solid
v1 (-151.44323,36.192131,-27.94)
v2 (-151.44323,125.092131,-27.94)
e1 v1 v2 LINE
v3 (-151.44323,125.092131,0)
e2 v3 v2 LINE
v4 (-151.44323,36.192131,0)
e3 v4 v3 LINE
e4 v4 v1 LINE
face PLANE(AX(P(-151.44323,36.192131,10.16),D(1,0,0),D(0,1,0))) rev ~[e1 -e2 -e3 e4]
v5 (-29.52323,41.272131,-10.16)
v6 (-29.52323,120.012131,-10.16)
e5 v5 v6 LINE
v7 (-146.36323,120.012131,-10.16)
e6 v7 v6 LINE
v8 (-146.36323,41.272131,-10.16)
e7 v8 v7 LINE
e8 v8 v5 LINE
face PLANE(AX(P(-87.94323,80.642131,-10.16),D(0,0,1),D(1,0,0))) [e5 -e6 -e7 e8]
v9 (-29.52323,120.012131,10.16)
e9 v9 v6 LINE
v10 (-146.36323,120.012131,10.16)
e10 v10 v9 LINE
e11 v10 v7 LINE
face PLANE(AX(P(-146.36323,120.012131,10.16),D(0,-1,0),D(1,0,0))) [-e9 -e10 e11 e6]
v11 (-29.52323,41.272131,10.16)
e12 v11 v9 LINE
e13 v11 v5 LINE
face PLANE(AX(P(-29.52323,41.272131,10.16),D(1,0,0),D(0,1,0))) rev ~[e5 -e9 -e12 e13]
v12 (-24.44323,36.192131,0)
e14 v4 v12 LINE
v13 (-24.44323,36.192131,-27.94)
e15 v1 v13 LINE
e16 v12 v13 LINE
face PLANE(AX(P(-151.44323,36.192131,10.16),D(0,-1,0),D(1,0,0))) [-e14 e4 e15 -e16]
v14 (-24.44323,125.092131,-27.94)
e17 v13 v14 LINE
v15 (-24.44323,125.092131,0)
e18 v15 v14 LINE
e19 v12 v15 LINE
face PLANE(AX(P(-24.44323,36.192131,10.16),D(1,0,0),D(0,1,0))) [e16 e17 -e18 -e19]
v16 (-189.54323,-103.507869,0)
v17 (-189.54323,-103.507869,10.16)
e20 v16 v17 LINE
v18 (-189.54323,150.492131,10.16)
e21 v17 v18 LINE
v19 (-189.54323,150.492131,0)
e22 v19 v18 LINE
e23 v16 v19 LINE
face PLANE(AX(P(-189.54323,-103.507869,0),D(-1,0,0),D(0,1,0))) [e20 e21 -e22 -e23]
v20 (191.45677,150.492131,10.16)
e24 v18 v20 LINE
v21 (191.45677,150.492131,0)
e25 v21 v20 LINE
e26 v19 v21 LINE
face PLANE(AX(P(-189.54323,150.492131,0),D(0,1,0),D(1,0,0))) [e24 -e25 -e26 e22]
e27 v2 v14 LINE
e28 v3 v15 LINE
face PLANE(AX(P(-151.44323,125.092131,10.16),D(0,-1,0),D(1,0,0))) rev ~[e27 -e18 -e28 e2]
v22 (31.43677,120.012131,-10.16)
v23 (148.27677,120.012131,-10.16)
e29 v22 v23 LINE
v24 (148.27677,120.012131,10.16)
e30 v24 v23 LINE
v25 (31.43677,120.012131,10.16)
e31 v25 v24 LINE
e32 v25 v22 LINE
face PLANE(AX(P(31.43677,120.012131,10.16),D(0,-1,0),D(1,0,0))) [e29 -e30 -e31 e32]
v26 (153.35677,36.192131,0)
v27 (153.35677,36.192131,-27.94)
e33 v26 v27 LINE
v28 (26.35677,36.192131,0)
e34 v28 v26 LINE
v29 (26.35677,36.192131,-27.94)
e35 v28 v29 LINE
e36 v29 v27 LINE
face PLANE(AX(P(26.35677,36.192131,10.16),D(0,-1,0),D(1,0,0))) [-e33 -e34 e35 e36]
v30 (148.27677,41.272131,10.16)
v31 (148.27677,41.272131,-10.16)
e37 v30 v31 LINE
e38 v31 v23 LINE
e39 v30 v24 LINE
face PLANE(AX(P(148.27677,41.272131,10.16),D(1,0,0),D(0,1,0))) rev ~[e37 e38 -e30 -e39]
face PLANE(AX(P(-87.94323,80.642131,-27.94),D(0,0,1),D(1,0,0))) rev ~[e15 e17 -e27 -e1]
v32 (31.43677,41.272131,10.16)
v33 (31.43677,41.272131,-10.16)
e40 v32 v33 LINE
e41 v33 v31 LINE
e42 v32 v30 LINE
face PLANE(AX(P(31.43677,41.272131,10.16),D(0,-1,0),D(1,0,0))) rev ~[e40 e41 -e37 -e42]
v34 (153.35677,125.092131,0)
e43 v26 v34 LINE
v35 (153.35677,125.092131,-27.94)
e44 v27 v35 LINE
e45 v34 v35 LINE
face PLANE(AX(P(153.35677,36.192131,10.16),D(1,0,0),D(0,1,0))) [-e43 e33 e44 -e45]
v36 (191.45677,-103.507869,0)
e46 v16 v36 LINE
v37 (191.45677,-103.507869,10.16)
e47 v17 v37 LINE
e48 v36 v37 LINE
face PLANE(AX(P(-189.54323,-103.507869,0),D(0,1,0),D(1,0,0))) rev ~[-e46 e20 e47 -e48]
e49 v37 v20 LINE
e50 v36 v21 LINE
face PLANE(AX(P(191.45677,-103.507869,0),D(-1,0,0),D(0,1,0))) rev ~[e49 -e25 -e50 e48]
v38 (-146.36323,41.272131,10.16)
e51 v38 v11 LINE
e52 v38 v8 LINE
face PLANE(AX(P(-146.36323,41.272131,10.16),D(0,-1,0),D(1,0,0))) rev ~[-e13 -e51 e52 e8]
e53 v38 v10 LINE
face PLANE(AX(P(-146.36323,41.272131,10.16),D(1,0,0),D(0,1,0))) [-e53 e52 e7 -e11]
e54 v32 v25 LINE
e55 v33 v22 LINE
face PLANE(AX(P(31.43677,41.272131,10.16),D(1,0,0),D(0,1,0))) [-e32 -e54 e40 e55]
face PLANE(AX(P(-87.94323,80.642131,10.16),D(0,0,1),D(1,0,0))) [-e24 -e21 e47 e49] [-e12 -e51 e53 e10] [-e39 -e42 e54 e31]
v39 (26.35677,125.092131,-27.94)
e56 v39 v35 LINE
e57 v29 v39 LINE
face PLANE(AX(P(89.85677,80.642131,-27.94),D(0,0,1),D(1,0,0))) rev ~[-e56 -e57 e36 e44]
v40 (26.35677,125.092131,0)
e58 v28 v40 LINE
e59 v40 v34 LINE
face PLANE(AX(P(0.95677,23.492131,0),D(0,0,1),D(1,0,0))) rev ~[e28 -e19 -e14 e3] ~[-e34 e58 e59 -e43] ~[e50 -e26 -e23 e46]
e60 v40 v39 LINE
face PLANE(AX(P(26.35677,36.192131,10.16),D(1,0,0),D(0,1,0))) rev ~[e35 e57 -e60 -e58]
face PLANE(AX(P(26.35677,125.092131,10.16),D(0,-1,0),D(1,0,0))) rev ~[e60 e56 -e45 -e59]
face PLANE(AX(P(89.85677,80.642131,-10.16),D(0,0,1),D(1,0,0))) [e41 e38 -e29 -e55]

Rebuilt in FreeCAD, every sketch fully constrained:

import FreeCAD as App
import Part
import Sketcher
Q = App.Units.Quantity


def add_polygon(sketch, points):
    """Adds a closed chain of lines whose ends are joined by coincident constraints."""
    first, n = sketch.GeometryCount, len(points)
    for a, b in zip(points, points[1:] + points[:1]):
        sketch.addGeometry(Part.LineSegment(App.Vector(*a, 0), App.Vector(*b, 0)), False)
    for i in range(n):
        sketch.addConstraint(Sketcher.Constraint("Coincident", first + i, 2, first + (i + 1) % n, 1))

doc = App.newDocument("Part")
body = doc.addObject("PartDesign::Body", "Body")

# Sketch on XY plane
sketch1 = doc.addObject("Sketcher::SketchObject", "Sketch")
body.addObject(sketch1)
sketch1.AttachmentSupport = (doc.XY_Plane, [""])
sketch1.MapMode = "FlatFace"
add_polygon(sketch1, [(-190, 150), (-190, -104), (191, -104), (191, 150)])  # lines 0-3
sketch1.addConstraint(Sketcher.Constraint("Vertical", 0))
sketch1.addConstraint(Sketcher.Constraint("Horizontal", 1))
sketch1.addConstraint(Sketcher.Constraint("Vertical", 2))
sketch1.addConstraint(Sketcher.Constraint("Horizontal", 3))
sketch1.addConstraint(Sketcher.Constraint("DistanceX", 1, 1, 1, 2, Q("15 in")))
sketch1.addConstraint(Sketcher.Constraint("DistanceY", 0, 2, 0, 1, Q("10 in")))
sketch1.addConstraint(Sketcher.Constraint("DistanceX", 0, 2, -1, 1, 189.54323))
sketch1.addConstraint(Sketcher.Constraint("DistanceY", 0, 2, -1, 1, 103.507869))
pad1 = doc.addObject("PartDesign::Pad", "Pad")
body.addObject(pad1)
pad1.Profile = sketch1
pad1.Length = Q("0.4 in")

# Sketch on XY plane
sketch2 = doc.addObject("Sketcher::SketchObject", "Sketch001")
body.addObject(sketch2)
sketch2.AttachmentSupport = (doc.XY_Plane, [""])
sketch2.MapMode = "FlatFace"
sketch2.AttachmentOffset = App.Placement(App.Vector(0, 0, 0.4 * 25.4), App.Rotation())
add_polygon(sketch2, [(-151, 125), (-151, 36), (-24, 36), (-24, 125)])  # lines 0-3
add_polygon(sketch2, [(26, 125), (26, 36), (153, 36), (153, 125)])  # lines 4-7
sketch2.addConstraint(Sketcher.Constraint("Vertical", 0))
sketch2.addConstraint(Sketcher.Constraint("Horizontal", 1))
sketch2.addConstraint(Sketcher.Constraint("Vertical", 2))
sketch2.addConstraint(Sketcher.Constraint("Horizontal", 3))
sketch2.addConstraint(Sketcher.Constraint("Vertical", 4))
sketch2.addConstraint(Sketcher.Constraint("Horizontal", 5))
sketch2.addConstraint(Sketcher.Constraint("Vertical", 6))
sketch2.addConstraint(Sketcher.Constraint("Horizontal", 7))
sketch2.addConstraint(Sketcher.Constraint("Horizontal", 1, 2, 4, 2))
sketch2.addConstraint(Sketcher.Constraint("Horizontal", 3, 2, 6, 2))
sketch2.addConstraint(Sketcher.Constraint("Equal", 3, 5))
sketch2.addConstraint(Sketcher.Constraint("DistanceX", 1, 1, 1, 2, Q("5 in")))
sketch2.addConstraint(Sketcher.Constraint("DistanceY", 0, 2, 0, 1, Q("3.5 in")))
sketch2.addConstraint(Sketcher.Constraint("DistanceX", 1, 2, 4, 2, Q("2 in")))
sketch2.addConstraint(Sketcher.Constraint("DistanceX", 0, 2, -1, 1, 151.44323))
sketch2.addConstraint(Sketcher.Constraint("DistanceY", -1, 1, 0, 2, 36.192131))
pad2 = doc.addObject("PartDesign::Pad", "Pad001")
body.addObject(pad2)
pad2.Profile = sketch2
pad2.Length = Q("1.5 in")
pad2.Reversed = True

# Sketch on XY plane
sketch3 = doc.addObject("Sketcher::SketchObject", "Sketch002")
body.addObject(sketch3)
sketch3.AttachmentSupport = (doc.XY_Plane, [""])
sketch3.MapMode = "FlatFace"
sketch3.AttachmentOffset = App.Placement(App.Vector(0, 0, 0.4 * 25.4), App.Rotation())
add_polygon(sketch3, [(-146, 120), (-146, 41), (-30, 41), (-30, 120)])  # lines 0-3
add_polygon(sketch3, [(31, 120), (31, 41), (148, 41), (148, 120)])  # lines 4-7
sketch3.addConstraint(Sketcher.Constraint("Vertical", 0))
sketch3.addConstraint(Sketcher.Constraint("Horizontal", 1))
sketch3.addConstraint(Sketcher.Constraint("Vertical", 2))
sketch3.addConstraint(Sketcher.Constraint("Horizontal", 3))
sketch3.addConstraint(Sketcher.Constraint("Vertical", 4))
sketch3.addConstraint(Sketcher.Constraint("Horizontal", 5))
sketch3.addConstraint(Sketcher.Constraint("Vertical", 6))
sketch3.addConstraint(Sketcher.Constraint("Horizontal", 7))
sketch3.addConstraint(Sketcher.Constraint("Horizontal", 1, 2, 4, 2))
sketch3.addConstraint(Sketcher.Constraint("Horizontal", 3, 2, 6, 2))
sketch3.addConstraint(Sketcher.Constraint("Equal", 3, 5))
sketch3.addConstraint(Sketcher.Constraint("DistanceX", 1, 1, 1, 2, Q("4.6 in")))
sketch3.addConstraint(Sketcher.Constraint("DistanceY", 0, 2, 0, 1, Q("3.1 in")))
sketch3.addConstraint(Sketcher.Constraint("DistanceX", 0, 2, 4, 2, Q("7 in")))
sketch3.addConstraint(Sketcher.Constraint("DistanceX", 0, 2, -1, 1, 146.36323))
sketch3.addConstraint(Sketcher.Constraint("DistanceY", -1, 1, 0, 2, 41.272131))
pocket1 = doc.addObject("PartDesign::Pocket", "Pocket")
body.addObject(pocket1)
pocket1.Profile = sketch3
pocket1.Length = Q("0.8 in")

doc.recompute()
